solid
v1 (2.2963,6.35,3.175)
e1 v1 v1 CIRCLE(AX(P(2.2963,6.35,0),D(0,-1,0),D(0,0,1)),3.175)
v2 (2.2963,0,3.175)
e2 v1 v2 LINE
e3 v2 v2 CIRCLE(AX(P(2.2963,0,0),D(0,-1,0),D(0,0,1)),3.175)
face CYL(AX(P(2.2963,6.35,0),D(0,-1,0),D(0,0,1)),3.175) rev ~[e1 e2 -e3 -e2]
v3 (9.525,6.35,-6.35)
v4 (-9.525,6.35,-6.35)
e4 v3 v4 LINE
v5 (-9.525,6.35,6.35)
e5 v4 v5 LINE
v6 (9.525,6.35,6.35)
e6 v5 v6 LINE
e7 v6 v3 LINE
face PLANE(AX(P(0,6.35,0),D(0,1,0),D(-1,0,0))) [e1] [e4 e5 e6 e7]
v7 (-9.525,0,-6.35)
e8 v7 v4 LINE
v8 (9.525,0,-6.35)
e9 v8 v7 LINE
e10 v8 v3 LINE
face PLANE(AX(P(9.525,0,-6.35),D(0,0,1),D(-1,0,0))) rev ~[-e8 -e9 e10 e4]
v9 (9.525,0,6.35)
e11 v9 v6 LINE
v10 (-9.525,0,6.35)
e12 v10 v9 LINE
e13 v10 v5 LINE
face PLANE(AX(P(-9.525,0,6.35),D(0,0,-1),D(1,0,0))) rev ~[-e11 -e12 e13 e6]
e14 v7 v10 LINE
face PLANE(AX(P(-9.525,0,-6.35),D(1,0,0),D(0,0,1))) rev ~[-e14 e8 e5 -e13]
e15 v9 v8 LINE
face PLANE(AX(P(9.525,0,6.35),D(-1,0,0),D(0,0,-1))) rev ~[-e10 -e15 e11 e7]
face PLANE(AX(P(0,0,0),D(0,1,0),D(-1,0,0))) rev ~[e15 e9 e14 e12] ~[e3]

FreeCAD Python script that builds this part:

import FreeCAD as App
import Part
import Sketcher
Q = App.Units.Quantity

doc = App.newDocument("Part")
body = doc.addObject("PartDesign::Body", "Body")

# Sketch on XZ plane
sketch1 = body.newObject("Sketcher::SketchObject", "Sketch")
sketch1.AttachmentSupport = (doc.getObject("XZ_Plane"), [""])
sketch1.MapMode = "FlatFace"
sketch1.addGeometry([
    Part.LineSegment(App.Vector(-10, -6, 0), App.Vector(-10, 6, 0)),
    Part.LineSegment(App.Vector(-10, 6, 0), App.Vector(10, 6, 0)),
    Part.LineSegment(App.Vector(10, 6, 0), App.Vector(10, -6, 0)),
    Part.LineSegment(App.Vector(10, -6, 0), App.Vector(-10, -6, 0)),
], False)
sketch1.addConstraint([
    Sketcher.Constraint("Coincident", 0, 2, 1, 1),
    Sketcher.Constraint("Coincident", 1, 2, 2, 1),
    Sketcher.Constraint("Coincident", 2, 2, 3, 1),
    Sketcher.Constraint("Coincident", 3, 2, 0, 1),
    Sketcher.Constraint("Vertical", 0),
    Sketcher.Constraint("Horizontal", 1),
    Sketcher.Constraint("Vertical", 2),
    Sketcher.Constraint("Horizontal", 3),
    Sketcher.Constraint("Symmetric", 0, 2, 2, 2, -1, 1),
    Sketcher.Constraint("DistanceY", 0, 1, 0, 2, Q("0.5 in")),
    Sketcher.Constraint("DistanceX", 1, 1, 1, 2, Q("0.75 in")),
])
pad1 = body.newObject("PartDesign::Pad", "Pad")
pad1.Profile = sketch1
pad1.Length = Q("0.25 in")
pad1.Reversed = True

# Sketch on XZ plane
sketch2 = body.newObject("Sketcher::SketchObject", "Sketch001")
sketch2.AttachmentSupport = (doc.getObject("XZ_Plane"), [""])
sketch2.MapMode = "FlatFace"
sketch2.AttachmentOffset = App.Placement(App.Vector(0, 0, -0.25 * 25.4), App.Rotation())
sketch2.addGeometry(Part.Circle(App.Vector(2.3, 0, 0), App.Vector(0, 0, 1), 3.2), False)
sketch2.addConstraint([
    Sketcher.Constraint("PointOnObject", 0, 3, -1),
    Sketcher.Constraint("Diameter", 0, Q("0.25 in")),
    Sketcher.Constraint("DistanceX", -1, 1, 0, 3, Q("0.0904 in")),
])
doc.recompute()
hole = body.newObject("PartDesign::Hole", "Hole")
hole.Profile = sketch2
hole.ThreadType = "None"
hole.Diameter = Q("0.25 in")
hole.DepthType = "Dimension"
hole.Depth = Q("1 in")
hole.DrillPoint = "Angled"
hole.DrillPointAngle = 118
hole.Reversed = True

doc.recompute()
